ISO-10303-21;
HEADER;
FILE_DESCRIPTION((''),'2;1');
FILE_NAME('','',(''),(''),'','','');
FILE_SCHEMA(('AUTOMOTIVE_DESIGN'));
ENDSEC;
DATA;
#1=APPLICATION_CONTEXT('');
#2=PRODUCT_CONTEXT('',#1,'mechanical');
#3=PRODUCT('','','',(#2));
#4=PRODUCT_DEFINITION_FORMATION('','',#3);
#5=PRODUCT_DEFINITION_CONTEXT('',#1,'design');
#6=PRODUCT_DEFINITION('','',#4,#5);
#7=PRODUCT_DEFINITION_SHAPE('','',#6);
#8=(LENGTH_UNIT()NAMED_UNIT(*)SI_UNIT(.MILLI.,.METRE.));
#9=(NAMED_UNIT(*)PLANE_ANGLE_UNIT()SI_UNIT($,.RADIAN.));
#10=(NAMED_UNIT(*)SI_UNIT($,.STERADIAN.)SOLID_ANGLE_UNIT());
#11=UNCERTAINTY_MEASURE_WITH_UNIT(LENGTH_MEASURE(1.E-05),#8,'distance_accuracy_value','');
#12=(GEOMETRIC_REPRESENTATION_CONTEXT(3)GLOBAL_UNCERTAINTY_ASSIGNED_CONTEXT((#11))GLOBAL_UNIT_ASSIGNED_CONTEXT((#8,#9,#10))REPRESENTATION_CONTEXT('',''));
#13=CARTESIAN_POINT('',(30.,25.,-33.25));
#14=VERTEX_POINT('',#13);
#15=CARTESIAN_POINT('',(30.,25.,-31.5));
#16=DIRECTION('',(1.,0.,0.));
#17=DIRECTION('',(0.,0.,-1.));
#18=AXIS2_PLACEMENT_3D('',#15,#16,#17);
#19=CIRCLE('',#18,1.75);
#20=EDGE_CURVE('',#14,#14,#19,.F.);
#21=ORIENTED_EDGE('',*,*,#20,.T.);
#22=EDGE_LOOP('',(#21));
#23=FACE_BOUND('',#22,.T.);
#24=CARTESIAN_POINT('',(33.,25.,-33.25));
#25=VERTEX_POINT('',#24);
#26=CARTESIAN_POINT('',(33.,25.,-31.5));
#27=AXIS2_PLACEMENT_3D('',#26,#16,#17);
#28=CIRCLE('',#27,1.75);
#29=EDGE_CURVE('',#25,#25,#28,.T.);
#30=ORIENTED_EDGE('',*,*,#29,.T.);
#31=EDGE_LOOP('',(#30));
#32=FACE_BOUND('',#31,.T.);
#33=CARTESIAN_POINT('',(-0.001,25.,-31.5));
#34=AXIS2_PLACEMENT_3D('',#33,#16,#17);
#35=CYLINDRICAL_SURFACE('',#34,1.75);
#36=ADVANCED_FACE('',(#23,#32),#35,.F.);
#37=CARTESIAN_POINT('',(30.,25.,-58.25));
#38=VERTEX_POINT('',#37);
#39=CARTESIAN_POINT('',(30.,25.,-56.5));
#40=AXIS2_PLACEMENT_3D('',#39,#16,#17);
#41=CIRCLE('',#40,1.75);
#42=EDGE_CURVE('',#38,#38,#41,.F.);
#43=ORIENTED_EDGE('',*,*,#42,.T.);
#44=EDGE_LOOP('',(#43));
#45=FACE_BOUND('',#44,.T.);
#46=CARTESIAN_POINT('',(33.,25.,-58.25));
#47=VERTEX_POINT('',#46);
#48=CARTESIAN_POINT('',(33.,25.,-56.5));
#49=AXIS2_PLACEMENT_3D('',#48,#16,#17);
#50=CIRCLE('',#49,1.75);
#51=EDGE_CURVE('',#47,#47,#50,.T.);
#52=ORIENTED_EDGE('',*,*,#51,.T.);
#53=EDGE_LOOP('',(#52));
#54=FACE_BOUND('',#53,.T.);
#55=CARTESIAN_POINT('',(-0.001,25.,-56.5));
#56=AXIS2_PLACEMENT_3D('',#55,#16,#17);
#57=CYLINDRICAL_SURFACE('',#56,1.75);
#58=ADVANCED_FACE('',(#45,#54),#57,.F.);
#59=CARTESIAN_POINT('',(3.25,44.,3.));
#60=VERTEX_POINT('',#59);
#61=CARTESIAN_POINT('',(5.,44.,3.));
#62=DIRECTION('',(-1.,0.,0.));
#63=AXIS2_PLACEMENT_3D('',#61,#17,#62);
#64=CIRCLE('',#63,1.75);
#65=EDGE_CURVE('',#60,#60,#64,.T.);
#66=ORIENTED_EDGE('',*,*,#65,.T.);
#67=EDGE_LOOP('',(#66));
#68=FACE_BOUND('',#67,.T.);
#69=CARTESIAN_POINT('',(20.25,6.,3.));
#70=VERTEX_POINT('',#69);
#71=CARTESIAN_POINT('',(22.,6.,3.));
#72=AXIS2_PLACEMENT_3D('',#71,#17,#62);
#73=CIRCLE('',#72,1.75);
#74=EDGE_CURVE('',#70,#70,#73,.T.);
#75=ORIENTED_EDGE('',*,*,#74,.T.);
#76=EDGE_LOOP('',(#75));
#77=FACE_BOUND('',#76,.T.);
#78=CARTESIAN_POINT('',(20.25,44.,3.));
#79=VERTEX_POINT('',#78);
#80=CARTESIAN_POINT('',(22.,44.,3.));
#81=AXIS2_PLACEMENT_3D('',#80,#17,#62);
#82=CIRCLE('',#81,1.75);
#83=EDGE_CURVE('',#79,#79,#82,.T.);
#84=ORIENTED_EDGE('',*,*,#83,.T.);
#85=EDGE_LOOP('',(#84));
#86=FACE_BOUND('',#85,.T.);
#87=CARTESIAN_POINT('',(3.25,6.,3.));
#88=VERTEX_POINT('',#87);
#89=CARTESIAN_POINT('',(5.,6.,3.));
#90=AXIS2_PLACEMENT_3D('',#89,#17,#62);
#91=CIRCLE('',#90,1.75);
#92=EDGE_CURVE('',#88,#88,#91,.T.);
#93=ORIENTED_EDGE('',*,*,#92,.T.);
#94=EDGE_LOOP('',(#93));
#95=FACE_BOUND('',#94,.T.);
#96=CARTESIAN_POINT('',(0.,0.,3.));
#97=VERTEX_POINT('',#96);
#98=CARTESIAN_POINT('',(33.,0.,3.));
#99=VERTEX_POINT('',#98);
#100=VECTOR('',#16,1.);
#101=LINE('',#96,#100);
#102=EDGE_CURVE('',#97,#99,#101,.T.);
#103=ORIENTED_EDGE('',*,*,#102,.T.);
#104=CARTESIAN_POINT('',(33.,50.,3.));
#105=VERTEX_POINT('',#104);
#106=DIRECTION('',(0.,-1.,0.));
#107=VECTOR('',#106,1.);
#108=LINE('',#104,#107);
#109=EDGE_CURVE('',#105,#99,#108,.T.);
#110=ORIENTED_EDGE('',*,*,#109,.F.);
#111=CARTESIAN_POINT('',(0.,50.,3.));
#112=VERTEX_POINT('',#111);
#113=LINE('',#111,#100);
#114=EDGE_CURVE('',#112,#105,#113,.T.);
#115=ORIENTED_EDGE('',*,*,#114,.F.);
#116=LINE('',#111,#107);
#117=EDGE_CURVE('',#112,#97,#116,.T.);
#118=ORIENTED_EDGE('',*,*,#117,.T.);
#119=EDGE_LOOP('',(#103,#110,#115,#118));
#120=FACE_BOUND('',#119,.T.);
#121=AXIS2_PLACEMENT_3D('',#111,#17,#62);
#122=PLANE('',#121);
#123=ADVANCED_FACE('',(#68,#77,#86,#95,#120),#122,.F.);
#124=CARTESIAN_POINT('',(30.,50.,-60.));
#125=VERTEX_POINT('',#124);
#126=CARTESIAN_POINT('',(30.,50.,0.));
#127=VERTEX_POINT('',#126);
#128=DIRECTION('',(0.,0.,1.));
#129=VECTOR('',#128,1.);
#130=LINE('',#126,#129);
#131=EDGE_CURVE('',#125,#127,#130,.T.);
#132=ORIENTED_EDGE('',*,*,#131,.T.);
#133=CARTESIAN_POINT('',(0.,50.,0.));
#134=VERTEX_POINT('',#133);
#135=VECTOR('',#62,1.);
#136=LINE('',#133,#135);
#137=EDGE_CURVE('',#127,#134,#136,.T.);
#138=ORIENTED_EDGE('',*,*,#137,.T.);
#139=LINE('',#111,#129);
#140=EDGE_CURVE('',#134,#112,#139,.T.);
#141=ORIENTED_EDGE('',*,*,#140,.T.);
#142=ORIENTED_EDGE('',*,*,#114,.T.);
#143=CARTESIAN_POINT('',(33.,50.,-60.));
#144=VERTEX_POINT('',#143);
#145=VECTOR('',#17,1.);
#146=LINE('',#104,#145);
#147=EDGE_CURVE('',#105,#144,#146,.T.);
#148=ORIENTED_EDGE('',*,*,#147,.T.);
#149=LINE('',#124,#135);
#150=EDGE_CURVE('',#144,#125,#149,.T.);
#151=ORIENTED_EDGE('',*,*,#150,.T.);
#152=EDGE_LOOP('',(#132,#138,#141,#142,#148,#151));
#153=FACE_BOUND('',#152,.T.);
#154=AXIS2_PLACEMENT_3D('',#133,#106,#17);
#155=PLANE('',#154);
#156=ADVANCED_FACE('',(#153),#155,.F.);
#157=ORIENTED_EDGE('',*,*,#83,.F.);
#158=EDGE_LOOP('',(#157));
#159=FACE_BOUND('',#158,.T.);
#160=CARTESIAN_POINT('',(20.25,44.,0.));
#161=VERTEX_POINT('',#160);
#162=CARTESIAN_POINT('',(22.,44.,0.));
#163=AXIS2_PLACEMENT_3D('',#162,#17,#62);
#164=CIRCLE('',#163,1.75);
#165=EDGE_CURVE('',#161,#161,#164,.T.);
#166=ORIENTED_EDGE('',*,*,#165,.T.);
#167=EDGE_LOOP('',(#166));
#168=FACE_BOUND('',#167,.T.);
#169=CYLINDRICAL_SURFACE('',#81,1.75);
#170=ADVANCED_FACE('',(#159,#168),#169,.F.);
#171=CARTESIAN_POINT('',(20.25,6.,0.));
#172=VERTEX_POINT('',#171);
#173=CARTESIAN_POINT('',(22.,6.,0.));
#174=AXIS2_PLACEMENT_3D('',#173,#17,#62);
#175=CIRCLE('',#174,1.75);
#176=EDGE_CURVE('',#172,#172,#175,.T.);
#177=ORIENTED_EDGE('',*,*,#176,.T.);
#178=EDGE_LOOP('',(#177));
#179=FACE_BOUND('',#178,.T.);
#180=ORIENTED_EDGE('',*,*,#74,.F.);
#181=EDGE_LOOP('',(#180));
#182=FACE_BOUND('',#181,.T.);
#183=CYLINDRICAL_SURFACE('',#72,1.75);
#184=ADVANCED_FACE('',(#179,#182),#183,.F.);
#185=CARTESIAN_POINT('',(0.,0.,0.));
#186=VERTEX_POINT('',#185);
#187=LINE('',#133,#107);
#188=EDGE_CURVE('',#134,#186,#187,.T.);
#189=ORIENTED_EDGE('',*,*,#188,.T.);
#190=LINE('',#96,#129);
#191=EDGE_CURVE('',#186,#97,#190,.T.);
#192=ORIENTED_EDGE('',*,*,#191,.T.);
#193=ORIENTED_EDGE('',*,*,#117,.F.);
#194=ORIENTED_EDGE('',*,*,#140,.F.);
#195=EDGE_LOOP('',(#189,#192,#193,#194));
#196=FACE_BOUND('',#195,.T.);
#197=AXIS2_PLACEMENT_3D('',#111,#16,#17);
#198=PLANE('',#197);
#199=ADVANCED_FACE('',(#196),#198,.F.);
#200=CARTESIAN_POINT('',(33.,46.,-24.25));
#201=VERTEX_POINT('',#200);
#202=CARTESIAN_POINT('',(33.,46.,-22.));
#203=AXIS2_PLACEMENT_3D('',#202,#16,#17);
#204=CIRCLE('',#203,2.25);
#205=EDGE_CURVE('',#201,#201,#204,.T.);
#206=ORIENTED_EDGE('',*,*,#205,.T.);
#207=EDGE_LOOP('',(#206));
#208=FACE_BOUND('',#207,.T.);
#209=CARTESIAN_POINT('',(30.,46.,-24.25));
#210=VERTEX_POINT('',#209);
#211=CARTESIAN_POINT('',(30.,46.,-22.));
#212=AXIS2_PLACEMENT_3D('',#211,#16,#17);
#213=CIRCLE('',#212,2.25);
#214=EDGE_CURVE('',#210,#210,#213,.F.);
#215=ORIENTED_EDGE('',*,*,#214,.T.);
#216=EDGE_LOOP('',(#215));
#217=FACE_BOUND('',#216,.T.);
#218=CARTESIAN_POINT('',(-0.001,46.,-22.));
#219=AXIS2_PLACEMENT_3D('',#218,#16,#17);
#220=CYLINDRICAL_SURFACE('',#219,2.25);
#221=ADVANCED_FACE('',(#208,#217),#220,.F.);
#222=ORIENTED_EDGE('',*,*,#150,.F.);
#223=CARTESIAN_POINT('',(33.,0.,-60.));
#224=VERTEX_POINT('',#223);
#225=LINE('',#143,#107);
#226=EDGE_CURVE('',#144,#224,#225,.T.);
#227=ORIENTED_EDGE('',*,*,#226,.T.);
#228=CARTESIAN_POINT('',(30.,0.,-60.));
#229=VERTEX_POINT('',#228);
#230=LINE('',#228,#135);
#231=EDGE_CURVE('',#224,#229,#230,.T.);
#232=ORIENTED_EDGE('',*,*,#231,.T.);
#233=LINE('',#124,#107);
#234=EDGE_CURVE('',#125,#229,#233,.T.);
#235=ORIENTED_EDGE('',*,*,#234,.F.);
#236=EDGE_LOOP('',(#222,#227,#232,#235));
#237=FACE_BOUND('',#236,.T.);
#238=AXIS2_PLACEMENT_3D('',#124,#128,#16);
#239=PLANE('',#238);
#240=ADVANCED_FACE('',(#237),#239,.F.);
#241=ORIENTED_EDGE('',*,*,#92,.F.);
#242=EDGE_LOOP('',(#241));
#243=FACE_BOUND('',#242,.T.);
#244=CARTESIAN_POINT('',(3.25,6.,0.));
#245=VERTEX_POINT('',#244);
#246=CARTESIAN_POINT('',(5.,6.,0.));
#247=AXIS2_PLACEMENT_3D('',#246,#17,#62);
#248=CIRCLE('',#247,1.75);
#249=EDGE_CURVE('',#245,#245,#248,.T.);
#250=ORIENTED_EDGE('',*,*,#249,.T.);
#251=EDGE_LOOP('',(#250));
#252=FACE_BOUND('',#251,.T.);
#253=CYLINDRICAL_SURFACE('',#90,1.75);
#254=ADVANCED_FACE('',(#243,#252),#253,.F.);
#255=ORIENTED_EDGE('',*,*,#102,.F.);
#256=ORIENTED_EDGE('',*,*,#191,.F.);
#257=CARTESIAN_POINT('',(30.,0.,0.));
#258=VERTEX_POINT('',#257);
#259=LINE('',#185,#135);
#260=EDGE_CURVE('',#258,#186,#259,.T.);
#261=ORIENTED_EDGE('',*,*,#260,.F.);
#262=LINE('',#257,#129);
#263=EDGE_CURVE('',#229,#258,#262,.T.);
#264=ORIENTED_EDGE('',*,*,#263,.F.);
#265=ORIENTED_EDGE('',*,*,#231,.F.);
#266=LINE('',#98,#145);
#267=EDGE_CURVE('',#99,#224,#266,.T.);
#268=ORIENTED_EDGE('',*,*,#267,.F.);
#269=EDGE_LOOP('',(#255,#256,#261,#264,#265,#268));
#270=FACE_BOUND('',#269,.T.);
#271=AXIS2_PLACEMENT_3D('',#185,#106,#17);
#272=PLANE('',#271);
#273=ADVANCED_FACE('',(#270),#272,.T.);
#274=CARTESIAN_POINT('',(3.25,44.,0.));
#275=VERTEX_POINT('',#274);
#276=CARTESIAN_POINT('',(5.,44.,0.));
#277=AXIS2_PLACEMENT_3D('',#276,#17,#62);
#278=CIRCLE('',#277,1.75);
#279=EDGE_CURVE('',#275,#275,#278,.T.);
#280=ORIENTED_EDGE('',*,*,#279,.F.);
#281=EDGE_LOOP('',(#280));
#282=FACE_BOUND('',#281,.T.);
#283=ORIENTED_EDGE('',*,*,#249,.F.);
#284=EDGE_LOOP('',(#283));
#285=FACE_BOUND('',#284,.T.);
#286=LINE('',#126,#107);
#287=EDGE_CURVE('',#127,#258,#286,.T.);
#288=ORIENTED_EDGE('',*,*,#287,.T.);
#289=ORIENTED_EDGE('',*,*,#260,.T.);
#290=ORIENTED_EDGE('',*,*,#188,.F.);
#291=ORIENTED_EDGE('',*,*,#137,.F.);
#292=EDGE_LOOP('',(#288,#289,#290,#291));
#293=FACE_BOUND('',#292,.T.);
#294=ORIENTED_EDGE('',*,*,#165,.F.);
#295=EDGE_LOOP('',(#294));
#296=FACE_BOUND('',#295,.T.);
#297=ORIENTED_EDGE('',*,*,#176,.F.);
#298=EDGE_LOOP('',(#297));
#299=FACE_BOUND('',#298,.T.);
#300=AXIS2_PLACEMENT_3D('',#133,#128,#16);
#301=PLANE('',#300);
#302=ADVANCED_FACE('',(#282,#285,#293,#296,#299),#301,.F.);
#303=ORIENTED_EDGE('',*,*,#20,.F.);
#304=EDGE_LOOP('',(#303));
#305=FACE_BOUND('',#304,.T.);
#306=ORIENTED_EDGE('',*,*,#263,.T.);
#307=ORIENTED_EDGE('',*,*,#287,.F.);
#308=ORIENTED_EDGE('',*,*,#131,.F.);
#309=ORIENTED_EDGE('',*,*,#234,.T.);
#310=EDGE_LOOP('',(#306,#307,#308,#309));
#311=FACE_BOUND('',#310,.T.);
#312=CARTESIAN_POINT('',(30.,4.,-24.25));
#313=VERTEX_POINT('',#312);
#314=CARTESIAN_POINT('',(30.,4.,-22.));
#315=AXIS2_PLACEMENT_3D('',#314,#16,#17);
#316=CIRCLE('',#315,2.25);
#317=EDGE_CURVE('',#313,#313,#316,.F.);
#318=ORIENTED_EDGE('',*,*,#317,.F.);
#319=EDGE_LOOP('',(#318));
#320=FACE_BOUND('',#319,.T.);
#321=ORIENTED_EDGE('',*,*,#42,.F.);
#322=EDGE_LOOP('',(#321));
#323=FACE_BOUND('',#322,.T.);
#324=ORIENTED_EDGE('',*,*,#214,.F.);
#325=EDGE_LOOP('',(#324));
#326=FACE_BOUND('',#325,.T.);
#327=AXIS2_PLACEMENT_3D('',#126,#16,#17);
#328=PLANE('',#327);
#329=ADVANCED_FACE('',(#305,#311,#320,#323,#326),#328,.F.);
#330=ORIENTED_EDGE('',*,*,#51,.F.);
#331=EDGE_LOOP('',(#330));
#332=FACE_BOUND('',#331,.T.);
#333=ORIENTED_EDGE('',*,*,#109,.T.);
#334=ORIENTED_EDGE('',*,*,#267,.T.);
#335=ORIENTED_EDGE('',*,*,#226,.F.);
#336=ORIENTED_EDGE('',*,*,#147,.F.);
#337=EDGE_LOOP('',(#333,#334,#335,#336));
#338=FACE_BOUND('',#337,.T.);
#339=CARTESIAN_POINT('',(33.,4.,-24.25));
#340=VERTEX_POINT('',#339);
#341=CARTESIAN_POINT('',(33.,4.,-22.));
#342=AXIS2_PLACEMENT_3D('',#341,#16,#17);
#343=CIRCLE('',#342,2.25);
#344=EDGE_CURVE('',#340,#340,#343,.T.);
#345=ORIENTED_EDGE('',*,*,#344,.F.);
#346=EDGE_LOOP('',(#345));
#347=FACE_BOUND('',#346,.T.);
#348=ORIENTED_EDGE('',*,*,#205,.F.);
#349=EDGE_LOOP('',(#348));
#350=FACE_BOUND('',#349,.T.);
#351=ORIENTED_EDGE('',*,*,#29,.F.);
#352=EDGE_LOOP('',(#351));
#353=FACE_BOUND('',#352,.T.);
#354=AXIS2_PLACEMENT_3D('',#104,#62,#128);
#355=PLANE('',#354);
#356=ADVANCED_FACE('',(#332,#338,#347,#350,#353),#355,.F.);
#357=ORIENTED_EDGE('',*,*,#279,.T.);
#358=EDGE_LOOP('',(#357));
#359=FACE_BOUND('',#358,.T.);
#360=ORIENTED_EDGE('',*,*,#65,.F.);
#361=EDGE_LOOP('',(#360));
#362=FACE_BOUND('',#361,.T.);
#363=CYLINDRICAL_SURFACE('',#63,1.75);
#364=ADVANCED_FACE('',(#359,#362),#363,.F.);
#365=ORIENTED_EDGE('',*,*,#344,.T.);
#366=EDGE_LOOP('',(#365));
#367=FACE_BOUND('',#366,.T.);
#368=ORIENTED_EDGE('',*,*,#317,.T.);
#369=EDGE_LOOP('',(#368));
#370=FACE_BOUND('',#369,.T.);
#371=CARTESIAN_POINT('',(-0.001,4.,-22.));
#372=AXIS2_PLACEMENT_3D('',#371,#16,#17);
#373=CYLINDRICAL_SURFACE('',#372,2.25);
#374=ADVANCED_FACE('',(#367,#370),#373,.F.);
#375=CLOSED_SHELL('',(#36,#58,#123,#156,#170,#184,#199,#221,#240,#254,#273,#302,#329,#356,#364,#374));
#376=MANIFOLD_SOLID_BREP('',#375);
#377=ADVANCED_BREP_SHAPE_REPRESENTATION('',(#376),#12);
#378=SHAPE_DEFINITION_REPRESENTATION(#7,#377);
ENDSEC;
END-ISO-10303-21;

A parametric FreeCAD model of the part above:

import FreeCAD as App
import Part
import Sketcher
from FreeCAD import Vector


def add_polygon(sketch, points):
    """Adds a closed chain of lines whose ends are joined by coincident constraints."""
    first, n = sketch.GeometryCount, len(points)
    for a, b in zip(points, points[1:] + points[:1]):
        sketch.addGeometry(Part.LineSegment(App.Vector(*a, 0), App.Vector(*b, 0)), False)
    for i in range(n):
        sketch.addConstraint(Sketcher.Constraint("Coincident", first + i, 2, first + (i + 1) % n, 1))

doc = App.newDocument("Part")
body = doc.addObject("PartDesign::Body", "Body")

sketch1 = doc.addObject("Sketcher::SketchObject", "Sketch")
body.addObject(sketch1)
sketch1.AttachmentSupport = (doc.XZ_Plane, [""])
sketch1.MapMode = "FlatFace"
add_polygon(sketch1, [(30, 0), (0, 0), (0, 3), (33, 3), (33, -60), (30, -60)])
sketch1.addConstraint([
    Sketcher.Constraint("Horizontal", 0),
    Sketcher.Constraint("Vertical", 1),
    Sketcher.Constraint("Horizontal", 2),
    Sketcher.Constraint("Vertical", 3),
    Sketcher.Constraint("Horizontal", 4),
    Sketcher.Constraint("Vertical", 5),
    Sketcher.Constraint("Coincident", 0, 2, -1, 1),
    Sketcher.Constraint("Equal", 4, 1),
    Sketcher.Constraint("DistanceX", 0, 2, 0, 1, 30.0),
    Sketcher.Constraint("DistanceX", 2, 1, 2, 2, 33.0),
    Sketcher.Constraint("DistanceY", 3, 2, 3, 1, 63.0),
])
pad1 = doc.addObject("PartDesign::Pad", "Pad")
body.addObject(pad1)
pad1.Profile = sketch1
pad1.Length = 50
pad1.Reversed = True

sketch2 = doc.addObject("Sketcher::SketchObject", "Sketch001")
body.addObject(sketch2)
sketch2.AttachmentSupport = (doc.XY_Plane, [""])
sketch2.MapMode = "FlatFace"
sketch2.addGeometry([
    Part.Circle(Vector(22, 6, 0), Vector(0, 0, 1), 1.8),
    Part.Circle(Vector(22, 44, 0), Vector(0, 0, 1), 1.8),
    Part.Circle(Vector(5, 44, 0), Vector(0, 0, 1), 1.8),
    Part.Circle(Vector(5, 6, 0), Vector(0, 0, 1), 1.8),
], False)
sketch2.addConstraint([
    Sketcher.Constraint("Equal", 0, 1),
    Sketcher.Constraint("Equal", 1, 2),
    Sketcher.Constraint("Equal", 2, 3),
    Sketcher.Constraint("Horizontal", 1, 3, 2, 3),
    Sketcher.Constraint("Horizontal", 0, 3, 3, 3),
    Sketcher.Constraint("Vertical", 0, 3, 1, 3),
    Sketcher.Constraint("Vertical", 2, 3, 3, 3),
    Sketcher.Constraint("Diameter", 0, 3.5),
    Sketcher.Constraint("DistanceX", -1, 1, 0, 3, 22.0),
    Sketcher.Constraint("DistanceY", -1, 1, 0, 3, 6.0),
    Sketcher.Constraint("DistanceY", -1, 1, 1, 3, 44.0),
    Sketcher.Constraint("DistanceX", -1, 1, 2, 3, 5.0),
])
pocket1 = doc.addObject("PartDesign::Pocket", "Pocket")
body.addObject(pocket1)
pocket1.Profile = sketch2
pocket1.Type = "ThroughAll"
pocket1.Reversed = True

sketch3 = doc.addObject("Sketcher::SketchObject", "Sketch002")
body.addObject(sketch3)
sketch3.AttachmentSupport = (doc.YZ_Plane, [""])
sketch3.MapMode = "FlatFace"
sketch3.AttachmentOffset = App.Placement(Vector(0, 0, 33), App.Rotation())
sketch3.addGeometry(Part.Circle(Vector(25, -56.5, 0), Vector(0, 0, 1), 1.8), False)
sketch3.addConstraint([
    Sketcher.Constraint("Diameter", 0, 3.5),
    Sketcher.Constraint("DistanceX", -1, 1, 0, 3, 25.0),
    Sketcher.Constraint("DistanceY", 0, 3, -1, 1, 56.5),
])
pocket2 = doc.addObject("PartDesign::Pocket", "Pocket001")
body.addObject(pocket2)
pocket2.Profile = sketch3
pocket2.Type = "UpToFirst"

sketch4 = doc.addObject("Sketcher::SketchObject", "Sketch003")
body.addObject(sketch4)
sketch4.AttachmentSupport = (doc.YZ_Plane, [""])
sketch4.MapMode = "FlatFace"
sketch4.AttachmentOffset = App.Placement(Vector(0, 0, 33), App.Rotation())
sketch4.addGeometry(Part.Circle(Vector(25, -31.5, 0), Vector(0, 0, 1), 1.8), False)
sketch4.addConstraint([
    Sketcher.Constraint("Diameter", 0, 3.5),
    Sketcher.Constraint("DistanceX", -1, 1, 0, 3, 25.0),
    Sketcher.Constraint("DistanceY", 0, 3, -1, 1, 31.5),
])
pocket3 = doc.addObject("PartDesign::Pocket", "Pocket002")
body.addObject(pocket3)
pocket3.Profile = sketch4
pocket3.Type = "UpToFirst"

sketch5 = doc.addObject("Sketcher::SketchObject", "Sketch004")
body.addObject(sketch5)
sketch5.AttachmentSupport = (doc.YZ_Plane, [""])
sketch5.MapMode = "FlatFace"
sketch5.AttachmentOffset = App.Placement(Vector(0, 0, 33), App.Rotation())
sketch5.addGeometry(Part.Circle(Vector(46, -22, 0), Vector(0, 0, 1), 2.2), False)
sketch5.addConstraint([
    Sketcher.Constraint("Diameter", 0, 4.5),
    Sketcher.Constraint("DistanceX", -1, 1, 0, 3, 46.0),
    Sketcher.Constraint("DistanceY", 0, 3, -1, 1, 22.0),
])
pocket4 = doc.addObject("PartDesign::Pocket", "Pocket003")
body.addObject(pocket4)
pocket4.Profile = sketch5
pocket4.Type = "UpToFirst"

sketch6 = doc.addObject("Sketcher::SketchObject", "Sketch005")
body.addObject(sketch6)
sketch6.AttachmentSupport = (doc.YZ_Plane, [""])
sketch6.MapMode = "FlatFace"
sketch6.AttachmentOffset = App.Placement(Vector(0, 0, 33), App.Rotation())
sketch6.addGeometry(Part.Circle(Vector(4, -22, 0), Vector(0, 0, 1), 2.2), False)
sketch6.addConstraint([
    Sketcher.Constraint("Diameter", 0, 4.5),
    Sketcher.Constraint("DistanceX", -1, 1, 0, 3, 4.0),
    Sketcher.Constraint("DistanceY", 0, 3, -1, 1, 22.0),
])
pocket5 = doc.addObject("PartDesign::Pocket", "Pocket004")
body.addObject(pocket5)
pocket5.Profile = sketch6
pocket5.Type = "UpToFirst"

doc.recompute()
